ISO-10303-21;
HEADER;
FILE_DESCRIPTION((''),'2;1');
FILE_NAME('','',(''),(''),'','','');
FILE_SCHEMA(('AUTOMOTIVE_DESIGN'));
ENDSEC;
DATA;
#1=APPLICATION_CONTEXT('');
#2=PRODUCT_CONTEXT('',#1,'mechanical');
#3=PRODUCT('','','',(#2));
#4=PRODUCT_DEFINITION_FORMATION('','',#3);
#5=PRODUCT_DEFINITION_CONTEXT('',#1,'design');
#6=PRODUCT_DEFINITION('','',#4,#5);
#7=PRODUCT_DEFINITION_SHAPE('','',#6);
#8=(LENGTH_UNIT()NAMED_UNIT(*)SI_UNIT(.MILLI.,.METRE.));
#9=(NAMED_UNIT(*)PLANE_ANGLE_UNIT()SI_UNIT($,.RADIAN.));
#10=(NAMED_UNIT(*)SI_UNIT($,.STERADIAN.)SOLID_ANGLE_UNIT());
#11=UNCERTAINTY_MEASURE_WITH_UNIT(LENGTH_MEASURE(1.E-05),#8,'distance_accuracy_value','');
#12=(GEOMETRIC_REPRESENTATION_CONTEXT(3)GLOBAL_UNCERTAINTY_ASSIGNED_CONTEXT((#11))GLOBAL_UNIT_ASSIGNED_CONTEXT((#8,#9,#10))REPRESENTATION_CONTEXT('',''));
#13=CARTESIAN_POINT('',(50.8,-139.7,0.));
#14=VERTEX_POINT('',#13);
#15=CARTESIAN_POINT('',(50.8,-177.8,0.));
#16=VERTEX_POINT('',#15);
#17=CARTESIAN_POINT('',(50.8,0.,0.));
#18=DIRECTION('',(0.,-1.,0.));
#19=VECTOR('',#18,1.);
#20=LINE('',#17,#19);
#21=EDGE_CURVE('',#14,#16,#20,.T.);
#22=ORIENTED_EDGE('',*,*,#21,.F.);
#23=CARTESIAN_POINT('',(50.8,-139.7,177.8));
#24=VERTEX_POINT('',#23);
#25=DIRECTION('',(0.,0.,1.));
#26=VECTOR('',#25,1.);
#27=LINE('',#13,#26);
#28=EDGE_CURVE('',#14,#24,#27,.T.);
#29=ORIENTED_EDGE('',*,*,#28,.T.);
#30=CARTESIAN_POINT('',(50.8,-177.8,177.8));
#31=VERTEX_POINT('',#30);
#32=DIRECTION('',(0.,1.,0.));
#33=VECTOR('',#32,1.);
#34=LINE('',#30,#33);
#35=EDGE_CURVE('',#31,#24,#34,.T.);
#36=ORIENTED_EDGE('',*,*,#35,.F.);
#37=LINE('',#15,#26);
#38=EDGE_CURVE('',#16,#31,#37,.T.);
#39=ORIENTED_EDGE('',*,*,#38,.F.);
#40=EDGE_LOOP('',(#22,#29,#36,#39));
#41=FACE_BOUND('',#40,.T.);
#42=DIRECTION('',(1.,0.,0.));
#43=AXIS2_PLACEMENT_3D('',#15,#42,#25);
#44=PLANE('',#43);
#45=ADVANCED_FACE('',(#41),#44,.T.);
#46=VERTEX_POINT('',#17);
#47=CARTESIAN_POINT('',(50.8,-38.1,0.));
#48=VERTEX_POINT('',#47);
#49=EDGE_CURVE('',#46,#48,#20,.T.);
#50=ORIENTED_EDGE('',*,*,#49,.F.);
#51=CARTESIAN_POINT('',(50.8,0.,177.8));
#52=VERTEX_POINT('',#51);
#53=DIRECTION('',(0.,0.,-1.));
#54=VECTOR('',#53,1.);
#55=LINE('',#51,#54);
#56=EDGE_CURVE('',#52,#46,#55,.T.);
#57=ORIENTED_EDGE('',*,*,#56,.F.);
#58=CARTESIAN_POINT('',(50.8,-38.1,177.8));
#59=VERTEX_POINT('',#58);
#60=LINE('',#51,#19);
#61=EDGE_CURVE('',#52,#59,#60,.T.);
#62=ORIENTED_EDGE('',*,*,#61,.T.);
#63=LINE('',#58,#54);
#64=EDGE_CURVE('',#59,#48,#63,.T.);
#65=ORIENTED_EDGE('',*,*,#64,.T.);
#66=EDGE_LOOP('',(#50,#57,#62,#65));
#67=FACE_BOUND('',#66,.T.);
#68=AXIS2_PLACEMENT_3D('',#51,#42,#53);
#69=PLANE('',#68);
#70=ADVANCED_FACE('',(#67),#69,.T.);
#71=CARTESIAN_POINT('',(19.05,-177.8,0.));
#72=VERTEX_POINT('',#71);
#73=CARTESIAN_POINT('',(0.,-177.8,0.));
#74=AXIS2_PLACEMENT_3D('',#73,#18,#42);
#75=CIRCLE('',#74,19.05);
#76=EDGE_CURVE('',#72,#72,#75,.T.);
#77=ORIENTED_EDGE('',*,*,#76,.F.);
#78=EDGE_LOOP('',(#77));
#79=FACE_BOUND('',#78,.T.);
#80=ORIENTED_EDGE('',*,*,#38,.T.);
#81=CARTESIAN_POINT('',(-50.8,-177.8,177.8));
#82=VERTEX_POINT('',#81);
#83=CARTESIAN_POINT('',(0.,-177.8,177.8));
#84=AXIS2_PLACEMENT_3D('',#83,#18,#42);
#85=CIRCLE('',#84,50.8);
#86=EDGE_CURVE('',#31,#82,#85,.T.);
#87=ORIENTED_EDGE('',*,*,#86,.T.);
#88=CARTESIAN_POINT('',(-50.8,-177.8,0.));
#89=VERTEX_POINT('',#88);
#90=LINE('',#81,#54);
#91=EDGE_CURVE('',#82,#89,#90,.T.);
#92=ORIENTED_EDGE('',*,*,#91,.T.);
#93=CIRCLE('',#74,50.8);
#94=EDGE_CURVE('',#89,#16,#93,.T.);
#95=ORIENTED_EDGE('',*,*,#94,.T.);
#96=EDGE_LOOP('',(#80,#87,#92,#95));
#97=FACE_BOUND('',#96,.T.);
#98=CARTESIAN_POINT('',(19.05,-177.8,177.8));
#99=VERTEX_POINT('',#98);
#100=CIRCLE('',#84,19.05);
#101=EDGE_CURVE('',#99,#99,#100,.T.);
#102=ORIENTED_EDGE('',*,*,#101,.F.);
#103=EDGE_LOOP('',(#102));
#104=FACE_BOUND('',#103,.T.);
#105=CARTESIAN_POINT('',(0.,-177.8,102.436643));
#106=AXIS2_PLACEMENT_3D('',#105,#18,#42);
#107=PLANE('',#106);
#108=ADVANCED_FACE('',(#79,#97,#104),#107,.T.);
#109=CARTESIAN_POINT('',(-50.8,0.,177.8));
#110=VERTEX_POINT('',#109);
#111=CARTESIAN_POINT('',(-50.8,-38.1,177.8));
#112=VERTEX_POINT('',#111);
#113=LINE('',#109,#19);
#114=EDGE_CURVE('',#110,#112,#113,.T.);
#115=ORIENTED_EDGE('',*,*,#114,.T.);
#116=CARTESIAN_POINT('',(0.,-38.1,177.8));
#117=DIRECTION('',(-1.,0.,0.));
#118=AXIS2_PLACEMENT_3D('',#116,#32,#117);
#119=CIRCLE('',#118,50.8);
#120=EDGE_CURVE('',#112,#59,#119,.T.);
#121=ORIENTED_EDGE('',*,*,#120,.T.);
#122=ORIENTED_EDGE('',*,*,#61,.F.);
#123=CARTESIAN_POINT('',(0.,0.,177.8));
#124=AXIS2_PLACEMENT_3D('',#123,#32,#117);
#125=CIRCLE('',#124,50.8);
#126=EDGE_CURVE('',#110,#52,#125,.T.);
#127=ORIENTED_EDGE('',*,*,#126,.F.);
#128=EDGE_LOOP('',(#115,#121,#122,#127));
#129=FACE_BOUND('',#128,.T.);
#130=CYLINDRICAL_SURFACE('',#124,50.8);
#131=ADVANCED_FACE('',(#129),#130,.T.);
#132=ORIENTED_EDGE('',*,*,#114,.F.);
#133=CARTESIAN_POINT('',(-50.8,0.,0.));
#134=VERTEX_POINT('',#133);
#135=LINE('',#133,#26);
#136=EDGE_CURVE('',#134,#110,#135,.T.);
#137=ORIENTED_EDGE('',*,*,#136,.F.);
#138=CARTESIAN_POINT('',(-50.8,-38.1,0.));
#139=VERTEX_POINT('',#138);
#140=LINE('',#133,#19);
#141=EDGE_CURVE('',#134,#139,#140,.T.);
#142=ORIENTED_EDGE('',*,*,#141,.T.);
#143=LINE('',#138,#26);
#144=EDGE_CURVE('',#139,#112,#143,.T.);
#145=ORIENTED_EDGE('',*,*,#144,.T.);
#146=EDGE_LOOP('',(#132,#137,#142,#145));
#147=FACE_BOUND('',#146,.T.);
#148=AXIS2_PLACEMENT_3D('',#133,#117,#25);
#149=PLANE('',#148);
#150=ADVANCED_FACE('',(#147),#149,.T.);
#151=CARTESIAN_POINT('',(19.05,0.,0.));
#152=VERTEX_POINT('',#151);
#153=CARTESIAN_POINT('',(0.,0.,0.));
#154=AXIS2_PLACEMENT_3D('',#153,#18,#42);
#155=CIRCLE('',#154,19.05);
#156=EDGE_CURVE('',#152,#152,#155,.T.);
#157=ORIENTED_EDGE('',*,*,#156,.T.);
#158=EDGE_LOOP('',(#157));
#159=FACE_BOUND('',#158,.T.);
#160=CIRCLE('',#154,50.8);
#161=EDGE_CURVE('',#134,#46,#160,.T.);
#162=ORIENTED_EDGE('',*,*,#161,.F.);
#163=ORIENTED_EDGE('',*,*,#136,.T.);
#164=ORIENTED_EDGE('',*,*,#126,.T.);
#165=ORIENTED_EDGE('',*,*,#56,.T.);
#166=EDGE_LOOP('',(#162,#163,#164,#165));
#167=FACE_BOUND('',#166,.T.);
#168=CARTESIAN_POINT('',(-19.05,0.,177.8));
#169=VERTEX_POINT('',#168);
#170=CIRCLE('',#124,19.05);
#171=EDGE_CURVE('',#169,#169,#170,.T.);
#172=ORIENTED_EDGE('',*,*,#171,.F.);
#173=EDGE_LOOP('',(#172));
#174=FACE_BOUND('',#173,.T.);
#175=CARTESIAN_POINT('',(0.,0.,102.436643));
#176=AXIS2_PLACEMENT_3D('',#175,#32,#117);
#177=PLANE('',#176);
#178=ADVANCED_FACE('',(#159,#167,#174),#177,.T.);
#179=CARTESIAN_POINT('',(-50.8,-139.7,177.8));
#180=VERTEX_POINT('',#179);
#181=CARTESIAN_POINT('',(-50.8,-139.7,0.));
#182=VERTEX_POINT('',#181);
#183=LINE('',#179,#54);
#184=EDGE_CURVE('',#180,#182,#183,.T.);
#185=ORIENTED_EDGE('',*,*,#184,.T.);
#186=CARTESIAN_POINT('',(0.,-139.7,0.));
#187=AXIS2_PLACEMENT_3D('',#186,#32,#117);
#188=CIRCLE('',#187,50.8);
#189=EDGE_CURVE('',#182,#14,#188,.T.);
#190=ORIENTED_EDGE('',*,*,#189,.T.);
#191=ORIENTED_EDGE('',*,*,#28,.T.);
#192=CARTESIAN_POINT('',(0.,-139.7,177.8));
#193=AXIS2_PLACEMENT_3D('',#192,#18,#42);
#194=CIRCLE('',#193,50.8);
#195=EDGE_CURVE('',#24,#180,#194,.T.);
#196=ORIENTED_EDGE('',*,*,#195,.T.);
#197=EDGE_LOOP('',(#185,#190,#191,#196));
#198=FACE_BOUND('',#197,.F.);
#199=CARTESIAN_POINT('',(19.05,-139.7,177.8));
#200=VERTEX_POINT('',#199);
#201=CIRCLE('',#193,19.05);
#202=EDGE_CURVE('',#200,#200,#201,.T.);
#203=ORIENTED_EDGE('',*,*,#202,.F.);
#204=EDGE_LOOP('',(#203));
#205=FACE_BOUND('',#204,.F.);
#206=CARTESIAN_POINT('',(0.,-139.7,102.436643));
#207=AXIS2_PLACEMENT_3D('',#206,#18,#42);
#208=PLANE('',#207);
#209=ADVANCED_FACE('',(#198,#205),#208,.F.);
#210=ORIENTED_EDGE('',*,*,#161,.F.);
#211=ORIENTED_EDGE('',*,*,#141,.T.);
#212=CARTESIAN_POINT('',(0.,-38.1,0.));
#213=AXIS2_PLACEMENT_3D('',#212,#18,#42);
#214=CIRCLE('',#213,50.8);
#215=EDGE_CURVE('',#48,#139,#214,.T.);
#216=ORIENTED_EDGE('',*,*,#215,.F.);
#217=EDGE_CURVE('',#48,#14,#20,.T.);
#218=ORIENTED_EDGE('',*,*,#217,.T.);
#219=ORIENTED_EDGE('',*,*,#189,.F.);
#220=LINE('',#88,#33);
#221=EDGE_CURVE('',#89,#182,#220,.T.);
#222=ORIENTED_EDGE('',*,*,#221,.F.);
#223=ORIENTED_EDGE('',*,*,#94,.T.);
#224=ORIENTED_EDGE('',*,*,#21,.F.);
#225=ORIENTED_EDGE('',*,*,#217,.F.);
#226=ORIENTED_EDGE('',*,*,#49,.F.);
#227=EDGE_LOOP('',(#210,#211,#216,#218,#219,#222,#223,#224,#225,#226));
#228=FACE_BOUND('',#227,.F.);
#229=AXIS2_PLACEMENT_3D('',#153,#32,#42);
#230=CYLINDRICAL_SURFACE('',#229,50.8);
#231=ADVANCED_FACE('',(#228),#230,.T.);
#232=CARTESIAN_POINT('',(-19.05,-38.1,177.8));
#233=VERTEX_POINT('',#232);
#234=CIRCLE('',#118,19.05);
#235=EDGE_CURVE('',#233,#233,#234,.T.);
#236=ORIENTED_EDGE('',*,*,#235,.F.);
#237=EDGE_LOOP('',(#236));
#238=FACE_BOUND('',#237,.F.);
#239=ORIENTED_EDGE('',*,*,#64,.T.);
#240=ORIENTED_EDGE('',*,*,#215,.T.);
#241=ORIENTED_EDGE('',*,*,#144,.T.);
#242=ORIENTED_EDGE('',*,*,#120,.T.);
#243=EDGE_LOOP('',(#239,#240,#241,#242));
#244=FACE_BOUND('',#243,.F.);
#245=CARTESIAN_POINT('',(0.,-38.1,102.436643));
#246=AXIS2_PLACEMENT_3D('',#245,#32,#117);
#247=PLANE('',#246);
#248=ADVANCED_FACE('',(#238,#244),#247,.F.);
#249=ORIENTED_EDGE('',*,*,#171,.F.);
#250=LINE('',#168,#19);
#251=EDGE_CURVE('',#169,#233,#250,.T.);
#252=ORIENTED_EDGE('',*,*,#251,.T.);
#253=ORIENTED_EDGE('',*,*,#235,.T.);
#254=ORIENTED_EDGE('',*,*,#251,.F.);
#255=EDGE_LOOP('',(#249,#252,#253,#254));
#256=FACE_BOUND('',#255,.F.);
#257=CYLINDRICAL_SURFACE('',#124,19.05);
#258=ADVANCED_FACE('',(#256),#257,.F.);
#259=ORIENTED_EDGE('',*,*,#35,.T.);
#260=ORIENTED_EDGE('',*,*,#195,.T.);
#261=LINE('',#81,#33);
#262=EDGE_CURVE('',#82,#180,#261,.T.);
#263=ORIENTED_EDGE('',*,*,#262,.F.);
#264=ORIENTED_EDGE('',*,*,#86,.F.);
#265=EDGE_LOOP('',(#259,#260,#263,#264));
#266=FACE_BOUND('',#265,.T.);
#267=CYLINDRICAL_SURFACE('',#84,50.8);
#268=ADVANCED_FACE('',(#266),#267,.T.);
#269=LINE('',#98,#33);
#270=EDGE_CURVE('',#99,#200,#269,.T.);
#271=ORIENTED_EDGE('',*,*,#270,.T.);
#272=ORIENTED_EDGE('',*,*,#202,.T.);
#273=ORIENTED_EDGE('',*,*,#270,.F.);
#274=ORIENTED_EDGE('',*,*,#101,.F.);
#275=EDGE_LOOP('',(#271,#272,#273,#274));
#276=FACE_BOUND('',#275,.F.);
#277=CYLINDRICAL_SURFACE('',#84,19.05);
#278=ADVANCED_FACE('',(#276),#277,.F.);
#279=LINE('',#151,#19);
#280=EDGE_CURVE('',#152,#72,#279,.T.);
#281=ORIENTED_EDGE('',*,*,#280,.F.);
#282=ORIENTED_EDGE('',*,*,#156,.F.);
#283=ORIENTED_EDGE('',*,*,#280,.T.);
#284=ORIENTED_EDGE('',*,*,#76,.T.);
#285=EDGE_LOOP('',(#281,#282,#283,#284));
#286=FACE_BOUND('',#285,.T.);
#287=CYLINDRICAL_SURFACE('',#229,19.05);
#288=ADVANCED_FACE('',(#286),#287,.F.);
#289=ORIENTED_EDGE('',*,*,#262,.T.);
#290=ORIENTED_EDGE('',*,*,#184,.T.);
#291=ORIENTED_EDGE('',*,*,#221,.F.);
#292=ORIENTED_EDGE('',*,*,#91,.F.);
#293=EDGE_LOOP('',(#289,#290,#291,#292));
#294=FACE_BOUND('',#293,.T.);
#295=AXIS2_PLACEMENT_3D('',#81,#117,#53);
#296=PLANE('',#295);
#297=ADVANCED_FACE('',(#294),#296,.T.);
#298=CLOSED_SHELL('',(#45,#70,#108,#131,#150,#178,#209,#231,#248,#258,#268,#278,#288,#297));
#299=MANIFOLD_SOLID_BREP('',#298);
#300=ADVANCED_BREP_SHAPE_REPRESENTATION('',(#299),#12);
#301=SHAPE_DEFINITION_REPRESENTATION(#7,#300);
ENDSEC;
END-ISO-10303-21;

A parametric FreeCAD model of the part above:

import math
import FreeCAD as App
import Part
import Sketcher
from FreeCAD import Vector
Q = App.Units.Quantity

doc = App.newDocument("Part")
body = doc.addObject("PartDesign::Body", "Body")

# Sketch on XZ plane
sketch1 = body.newObject("Sketcher::SketchObject", "Sketch")
sketch1.AttachmentSupport = (doc.getObject("XZ_Plane"), [""])
sketch1.MapMode = "FlatFace"
sketch1.addGeometry(Part.Circle(Vector(0, 0, 0), Vector(0, 0, 1), 51), False)
sketch1.addGeometry(Part.Circle(Vector(0, 0, 0), Vector(0, 0, 1), 19), False)
sketch1.addConstraint(Sketcher.Constraint("Coincident", 0, 3, -1, 1))
sketch1.addConstraint(Sketcher.Constraint("Coincident", 1, 3, -1, 1))
sketch1.addConstraint(Sketcher.Constraint("Diameter", 0, Q("4 in")))
sketch1.addConstraint(Sketcher.Constraint("Diameter", 1, Q("1.5 in")))
pad1 = body.newObject("PartDesign::Pad", "Pad")
pad1.Profile = sketch1
pad1.Length = Q("7 in")

# Sketch on XZ plane
sketch2 = body.newObject("Sketcher::SketchObject", "Sketch001")
sketch2.AttachmentSupport = (doc.getObject("XZ_Plane"), [""])
sketch2.MapMode = "FlatFace"
sketch2.AttachmentOffset = App.Placement(Vector(0, 0, 7 * 25.4), App.Rotation())
sketch2.addGeometry(Part.LineSegment(Vector(-51, 178, 0), Vector(-51, 0, 0)), False)
sketch2.addGeometry(Part.ArcOfCircle(Part.Circle(Vector(0, 0, 0), Vector(0, 0, 1), 51), math.radians(0), math.radians(180)), False)
sketch2.addGeometry(Part.LineSegment(Vector(51, 0, 0), Vector(51, 178, 0)), False)
sketch2.addGeometry(Part.ArcOfCircle(Part.Circle(Vector(0, 178, 0), Vector(0, 0, 1), 51), math.radians(0), math.radians(180)), False)
sketch2.addConstraint(Sketcher.Constraint("Tangent", 0, 2, 1, 2))
sketch2.addConstraint(Sketcher.Constraint("Tangent", 1, 1, 2, 1))
sketch2.addConstraint(Sketcher.Constraint("Tangent", 2, 2, 3, 1))
sketch2.addConstraint(Sketcher.Constraint("Tangent", 3, 2, 0, 1))
sketch2.addConstraint(Sketcher.Constraint("Vertical", 0))
sketch2.addConstraint(Sketcher.Constraint("Vertical", 2))
sketch2.addConstraint(Sketcher.Constraint("Coincident", 1, 3, -1, 1))
sketch2.addConstraint(Sketcher.Constraint("Radius", 1, Q("2 in")))
sketch2.addConstraint(Sketcher.Constraint("DistanceY", 0, 2, 0, 1, Q("7 in")))
pad2 = body.newObject("PartDesign::Pad", "Pad001")
pad2.Profile = sketch2
pad2.Length = Q("1.5 in")
pad2.Reversed = True

# Sketch on XZ plane
sketch3 = body.newObject("Sketcher::SketchObject", "Sketch002")
sketch3.AttachmentSupport = (doc.getObject("XZ_Plane"), [""])
sketch3.MapMode = "FlatFace"
sketch3.addGeometry(Part.LineSegment(Vector(51, 178, 0), Vector(51, 0, 0)), False)
sketch3.addGeometry(Part.ArcOfCircle(Part.Circle(Vector(0, 0, 0), Vector(0, 0, 1), 51), math.radians(0), math.radians(180)), False)
sketch3.addGeometry(Part.LineSegment(Vector(-51, 0, 0), Vector(-51, 178, 0)), False)
sketch3.addGeometry(Part.ArcOfCircle(Part.Circle(Vector(0, 178, 0), Vector(0, 0, 1), 51), math.radians(0), math.radians(180)), False)
sketch3.addConstraint(Sketcher.Constraint("Tangent", 0, 2, 1, 1))
sketch3.addConstraint(Sketcher.Constraint("Tangent", 1, 2, 2, 1))
sketch3.addConstraint(Sketcher.Constraint("Tangent", 2, 2, 3, 2))
sketch3.addConstraint(Sketcher.Constraint("Tangent", 3, 1, 0, 1))
sketch3.addConstraint(Sketcher.Constraint("Vertical", 0))
sketch3.addConstraint(Sketcher.Constraint("Vertical", 2))
sketch3.addConstraint(Sketcher.Constraint("Coincident", 1, 3, -1, 1))
sketch3.addConstraint(Sketcher.Constraint("Radius", 1, Q("2 in")))
sketch3.addConstraint(Sketcher.Constraint("DistanceY", 0, 2, 0, 1, Q("7 in")))
pad3 = body.newObject("PartDesign::Pad", "Pad002")
pad3.Profile = sketch3
pad3.Length = Q("1.5 in")

# Sketch on XZ plane
sketch4 = body.newObject("Sketcher::SketchObject", "Sketch003")
sketch4.AttachmentSupport = (doc.getObject("XZ_Plane"), [""])
sketch4.MapMode = "FlatFace"
sketch4.AttachmentOffset = App.Placement(Vector(0, 0, 7 * 25.4), App.Rotation())
sketch4.addGeometry(Part.Circle(Vector(0, 178, 0), Vector(0, 0, 1), 19), False)
sketch4.addConstraint(Sketcher.Constraint("PointOnObject", 0, 3, -2))
sketch4.addConstraint(Sketcher.Constraint("Diameter", 0, Q("1.5 in")))
sketch4.addConstraint(Sketcher.Constraint("DistanceY", -1, 1, 0, 3, Q("7 in")))
pocket1 = body.newObject("PartDesign::Pocket", "Pocket")
pocket1.Profile = sketch4
pocket1.Length = Q("2.63 in")

# Sketch on XZ plane
sketch5 = body.newObject("Sketcher::SketchObject", "Sketch004")
sketch5.AttachmentSupport = (doc.getObject("XZ_Plane"), [""])
sketch5.MapMode = "FlatFace"
sketch5.addGeometry(Part.Circle(Vector(0, 178, 0), Vector(0, 0, 1), 19), False)
sketch5.addConstraint(Sketcher.Constraint("PointOnObject", 0, 3, -2))
sketch5.addConstraint(Sketcher.Constraint("Diameter", 0, Q("1.5 in")))
sketch5.addConstraint(Sketcher.Constraint("DistanceY", -1, 1, 0, 3, Q("7 in")))
pocket2 = body.newObject("PartDesign::Pocket", "Pocket001")
pocket2.Profile = sketch5
pocket2.Length = Q("4.2 in")
pocket2.Reversed = True

doc.recompute()
